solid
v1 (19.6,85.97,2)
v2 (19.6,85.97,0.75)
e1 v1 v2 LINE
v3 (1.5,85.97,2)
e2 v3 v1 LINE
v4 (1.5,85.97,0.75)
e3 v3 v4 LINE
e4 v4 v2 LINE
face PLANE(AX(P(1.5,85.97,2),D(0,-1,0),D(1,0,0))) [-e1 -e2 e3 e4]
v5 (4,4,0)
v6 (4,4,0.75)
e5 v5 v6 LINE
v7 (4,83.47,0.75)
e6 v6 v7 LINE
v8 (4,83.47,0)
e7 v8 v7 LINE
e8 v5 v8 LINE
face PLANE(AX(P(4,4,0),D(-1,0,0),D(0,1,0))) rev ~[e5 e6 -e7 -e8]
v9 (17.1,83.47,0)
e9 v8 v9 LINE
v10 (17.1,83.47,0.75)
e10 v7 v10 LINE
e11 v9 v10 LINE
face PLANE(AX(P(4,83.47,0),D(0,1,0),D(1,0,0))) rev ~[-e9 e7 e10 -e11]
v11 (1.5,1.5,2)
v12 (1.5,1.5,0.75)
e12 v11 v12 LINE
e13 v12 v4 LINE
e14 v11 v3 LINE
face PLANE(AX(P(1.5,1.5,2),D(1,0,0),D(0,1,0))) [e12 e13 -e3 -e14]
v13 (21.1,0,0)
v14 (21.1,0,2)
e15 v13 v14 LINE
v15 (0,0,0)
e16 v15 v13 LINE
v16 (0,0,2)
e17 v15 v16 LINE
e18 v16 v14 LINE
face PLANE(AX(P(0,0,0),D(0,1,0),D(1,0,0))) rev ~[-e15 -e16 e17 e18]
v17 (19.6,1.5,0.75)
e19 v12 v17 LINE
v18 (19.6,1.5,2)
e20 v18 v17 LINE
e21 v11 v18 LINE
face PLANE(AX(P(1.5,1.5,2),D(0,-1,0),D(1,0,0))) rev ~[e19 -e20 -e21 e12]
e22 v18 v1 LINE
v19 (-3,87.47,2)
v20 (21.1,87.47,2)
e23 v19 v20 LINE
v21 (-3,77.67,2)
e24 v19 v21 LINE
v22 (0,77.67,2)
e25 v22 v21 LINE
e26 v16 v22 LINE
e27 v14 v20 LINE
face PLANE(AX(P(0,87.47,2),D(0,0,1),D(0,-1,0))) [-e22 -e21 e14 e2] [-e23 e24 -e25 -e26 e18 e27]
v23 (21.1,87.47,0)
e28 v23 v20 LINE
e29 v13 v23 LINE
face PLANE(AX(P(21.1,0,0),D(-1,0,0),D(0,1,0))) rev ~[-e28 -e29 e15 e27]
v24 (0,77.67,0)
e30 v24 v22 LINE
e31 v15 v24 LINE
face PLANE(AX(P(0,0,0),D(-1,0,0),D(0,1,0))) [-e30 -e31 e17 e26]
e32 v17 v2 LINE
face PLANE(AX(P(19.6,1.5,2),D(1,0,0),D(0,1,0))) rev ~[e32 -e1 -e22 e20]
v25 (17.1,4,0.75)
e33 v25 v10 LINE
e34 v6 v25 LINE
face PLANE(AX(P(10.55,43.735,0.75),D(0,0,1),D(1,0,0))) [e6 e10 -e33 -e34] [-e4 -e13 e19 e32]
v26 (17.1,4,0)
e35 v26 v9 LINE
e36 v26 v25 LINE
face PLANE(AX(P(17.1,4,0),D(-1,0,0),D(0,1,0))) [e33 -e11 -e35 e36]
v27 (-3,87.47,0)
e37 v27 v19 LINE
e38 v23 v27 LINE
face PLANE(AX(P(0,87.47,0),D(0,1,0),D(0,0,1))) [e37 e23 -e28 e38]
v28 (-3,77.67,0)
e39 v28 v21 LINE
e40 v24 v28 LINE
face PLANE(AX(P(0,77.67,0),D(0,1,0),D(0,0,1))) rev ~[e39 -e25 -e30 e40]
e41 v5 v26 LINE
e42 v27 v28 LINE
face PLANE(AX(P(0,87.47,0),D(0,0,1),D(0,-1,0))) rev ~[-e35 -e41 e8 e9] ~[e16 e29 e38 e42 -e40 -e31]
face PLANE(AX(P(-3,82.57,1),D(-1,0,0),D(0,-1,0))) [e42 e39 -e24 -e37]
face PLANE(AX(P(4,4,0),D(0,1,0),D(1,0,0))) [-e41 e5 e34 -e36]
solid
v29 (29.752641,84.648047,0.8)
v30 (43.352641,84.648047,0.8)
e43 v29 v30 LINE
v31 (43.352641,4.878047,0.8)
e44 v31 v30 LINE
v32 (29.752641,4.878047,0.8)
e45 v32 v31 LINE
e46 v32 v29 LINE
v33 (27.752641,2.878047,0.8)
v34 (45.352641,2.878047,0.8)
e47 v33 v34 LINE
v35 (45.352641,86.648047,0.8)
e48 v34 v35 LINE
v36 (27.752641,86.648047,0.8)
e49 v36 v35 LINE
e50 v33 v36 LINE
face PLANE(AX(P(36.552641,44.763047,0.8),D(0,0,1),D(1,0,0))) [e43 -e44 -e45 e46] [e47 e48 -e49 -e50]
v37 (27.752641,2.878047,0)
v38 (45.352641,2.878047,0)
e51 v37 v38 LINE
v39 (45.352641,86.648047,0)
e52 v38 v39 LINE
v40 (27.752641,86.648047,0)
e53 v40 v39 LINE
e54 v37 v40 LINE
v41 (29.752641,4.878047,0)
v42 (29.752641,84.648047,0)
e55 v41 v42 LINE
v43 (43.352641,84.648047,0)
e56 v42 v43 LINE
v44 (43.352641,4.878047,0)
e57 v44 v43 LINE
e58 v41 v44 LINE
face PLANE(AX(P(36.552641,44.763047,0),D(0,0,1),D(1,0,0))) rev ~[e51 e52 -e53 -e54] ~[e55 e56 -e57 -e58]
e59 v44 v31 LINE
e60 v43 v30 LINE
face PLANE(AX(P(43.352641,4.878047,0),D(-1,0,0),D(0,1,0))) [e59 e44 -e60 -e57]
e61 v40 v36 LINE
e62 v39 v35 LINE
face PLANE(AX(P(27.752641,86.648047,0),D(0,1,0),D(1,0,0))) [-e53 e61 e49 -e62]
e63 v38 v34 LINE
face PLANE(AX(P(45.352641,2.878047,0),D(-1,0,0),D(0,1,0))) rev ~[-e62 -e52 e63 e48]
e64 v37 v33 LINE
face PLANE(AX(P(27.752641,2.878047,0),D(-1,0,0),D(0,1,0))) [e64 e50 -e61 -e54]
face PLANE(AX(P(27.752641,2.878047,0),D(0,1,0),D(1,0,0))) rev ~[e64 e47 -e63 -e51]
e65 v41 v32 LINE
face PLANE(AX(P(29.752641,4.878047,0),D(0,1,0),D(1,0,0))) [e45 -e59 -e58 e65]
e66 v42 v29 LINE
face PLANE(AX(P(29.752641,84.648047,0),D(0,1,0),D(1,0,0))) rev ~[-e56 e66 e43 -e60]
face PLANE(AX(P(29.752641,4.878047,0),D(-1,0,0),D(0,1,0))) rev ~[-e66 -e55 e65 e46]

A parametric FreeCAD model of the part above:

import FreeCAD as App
import Part
import Sketcher
Q = App.Units.Quantity

doc = App.newDocument("Part")
body = doc.addObject("PartDesign::Body", "Body")

# Sketch on XY plane
sketch1 = body.newObject("Sketcher::SketchObject", "Sketch")
sketch1.AttachmentSupport = (doc.getObject("XY_Plane"), [""])
sketch1.MapMode = "FlatFace"
sketch1.addGeometry([
    Part.LineSegment(App.Vector(0, 87, 0), App.Vector(0, 0, 0)),  # 0
    Part.LineSegment(App.Vector(0, 0, 0), App.Vector(21, 0, 0)),  # 1
    Part.LineSegment(App.Vector(21, 0, 0), App.Vector(21, 87, 0)),  # 2
    Part.LineSegment(App.Vector(21, 87, 0), App.Vector(0, 87, 0)),  # 3
    Part.LineSegment(App.Vector(17, 4, 0), App.Vector(4, 4, 0)),  # 4
    Part.LineSegment(App.Vector(4, 4, 0), App.Vector(4, 83, 0)),  # 5
    Part.LineSegment(App.Vector(4, 83, 0), App.Vector(17, 83, 0)),  # 6
    Part.LineSegment(App.Vector(17, 83, 0), App.Vector(17, 4, 0)),  # 7
], False)
sketch1.addConstraint([
    Sketcher.Constraint("Coincident", 0, 2, 1, 1),
    Sketcher.Constraint("Coincident", 1, 2, 2, 1),
    Sketcher.Constraint("Coincident", 2, 2, 3, 1),
    Sketcher.Constraint("Coincident", 3, 2, 0, 1),
    Sketcher.Constraint("Coincident", 4, 2, 5, 1),
    Sketcher.Constraint("Coincident", 5, 2, 6, 1),
    Sketcher.Constraint("Coincident", 6, 2, 7, 1),
    Sketcher.Constraint("Coincident", 7, 2, 4, 1),
    Sketcher.Constraint("Vertical", 0),
    Sketcher.Constraint("Horizontal", 1),
    Sketcher.Constraint("Vertical", 2),
    Sketcher.Constraint("Horizontal", 3),
    Sketcher.Constraint("Horizontal", 4),
    Sketcher.Constraint("Vertical", 5),
    Sketcher.Constraint("Horizontal", 6),
    Sketcher.Constraint("Vertical", 7),
    Sketcher.Constraint("Coincident", 0, 2, -1, 1),
    Sketcher.Constraint("DistanceX", 1, 1, 1, 2, Q("21.1 mm")),
    Sketcher.Constraint("DistanceX", 4, 2, 4, 1, Q("13.1 mm")),
    Sketcher.Constraint("DistanceX", -1, 1, 4, 2, Q("4 mm")),
    Sketcher.Constraint("DistanceY", -1, 1, 4, 2, Q("4 mm")),
    Sketcher.Constraint("DistanceY", 5, 2, 3, 2, Q("4 mm")),
    Sketcher.Constraint("DistanceY", 0, 2, 0, 1, Q("87.47 mm")),
])
pad1 = body.newObject("PartDesign::Pad", "Pad")
pad1.Profile = sketch1
pad1.Length = 2

# Sketch on XY plane
sketch2 = body.newObject("Sketcher::SketchObject", "Sketch001")
sketch2.AttachmentSupport = (doc.getObject("XY_Plane"), [""])
sketch2.MapMode = "FlatFace"
sketch2.AttachmentOffset = App.Placement(App.Vector(0, 0, 2), App.Rotation())
sketch2.addGeometry([
    Part.LineSegment(App.Vector(2, 86, 0), App.Vector(2, 2, 0)),
    Part.LineSegment(App.Vector(2, 2, 0), App.Vector(20, 2, 0)),
    Part.LineSegment(App.Vector(20, 2, 0), App.Vector(20, 86, 0)),
    Part.LineSegment(App.Vector(20, 86, 0), App.Vector(2, 86, 0)),
], False)
sketch2.addConstraint([
    Sketcher.Constraint("Coincident", 0, 2, 1, 1),
    Sketcher.Constraint("Coincident", 1, 2, 2, 1),
    Sketcher.Constraint("Coincident", 2, 2, 3, 1),
    Sketcher.Constraint("Coincident", 3, 2, 0, 1),
    Sketcher.Constraint("Vertical", 0),
    Sketcher.Constraint("Horizontal", 1),
    Sketcher.Constraint("Vertical", 2),
    Sketcher.Constraint("Horizontal", 3),
    Sketcher.Constraint("DistanceX", 1, 1, 1, 2, Q("18.1 mm")),
    Sketcher.Constraint("DistanceY", 0, 2, 0, 1, Q("84.47 mm")),
    Sketcher.Constraint("DistanceX", -1, 1, 0, 2, Q("1.5 mm")),
    Sketcher.Constraint("DistanceY", -1, 1, 0, 2, Q("1.5 mm")),
])
pocket1 = body.newObject("PartDesign::Pocket", "Pocket")
pocket1.Profile = sketch2
pocket1.Length = 1.25

# Sketch on YZ plane
sketch3 = body.newObject("Sketcher::SketchObject", "Sketch002")
sketch3.AttachmentSupport = (doc.getObject("YZ_Plane"), [""])
sketch3.MapMode = "FlatFace"
sketch3.addGeometry([
    Part.LineSegment(App.Vector(87.5, 2, 0), App.Vector(87.5, 0, 0)),
    Part.LineSegment(App.Vector(87.5, 0, 0), App.Vector(77.7, 0, 0)),
    Part.LineSegment(App.Vector(77.7, 0, 0), App.Vector(77.7, 2, 0)),
    Part.LineSegment(App.Vector(77.7, 2, 0), App.Vector(87.5, 2, 0)),
], False)
sketch3.addConstraint([
    Sketcher.Constraint("Coincident", 0, 2, 1, 1),
    Sketcher.Constraint("Coincident", 1, 2, 2, 1),
    Sketcher.Constraint("Coincident", 2, 2, 3, 1),
    Sketcher.Constraint("Coincident", 3, 2, 0, 1),
    Sketcher.Constraint("Vertical", 0),
    Sketcher.Constraint("Horizontal", 1),
    Sketcher.Constraint("Vertical", 2),
    Sketcher.Constraint("Horizontal", 3),
    Sketcher.Constraint("PointOnObject", 0, 2, -1),
    Sketcher.Constraint("DistanceY", 0, 2, 0, 1, Q("2 mm")),
    Sketcher.Constraint("DistanceX", 1, 2, 1, 1, Q("9.8 mm")),
    Sketcher.Constraint("DistanceX", -1, 1, 0, 2, Q("87.47 mm")),
])
pad2 = body.newObject("PartDesign::Pad", "Pad001")
pad2.Profile = sketch3
pad2.Length = 3
pad2.Reversed = True
body2 = doc.addObject("PartDesign::Body", "Body001")

# Sketch on XY plane
sketch4 = body2.newObject("Sketcher::SketchObject", "Sketch003")
sketch4.AttachmentSupport = (doc.getObject("XY_Plane001"), [""])
sketch4.MapMode = "FlatFace"
sketch4.addGeometry([
    Part.LineSegment(App.Vector(28, 87, 0), App.Vector(28, 3, 0)),  # 0
    Part.LineSegment(App.Vector(28, 3, 0), App.Vector(45, 3, 0)),  # 1
    Part.LineSegment(App.Vector(45, 3, 0), App.Vector(45, 87, 0)),  # 2
    Part.LineSegment(App.Vector(45, 87, 0), App.Vector(28, 87, 0)),  # 3
    Part.LineSegment(App.Vector(43, 5, 0), App.Vector(30, 5, 0)),  # 4
    Part.LineSegment(App.Vector(30, 5, 0), App.Vector(30, 85, 0)),  # 5
    Part.LineSegment(App.Vector(30, 85, 0), App.Vector(43, 85, 0)),  # 6
    Part.LineSegment(App.Vector(43, 85, 0), App.Vector(43, 5, 0)),  # 7
], False)
sketch4.addConstraint([
    Sketcher.Constraint("Coincident", 0, 2, 1, 1),
    Sketcher.Constraint("Coincident", 1, 2, 2, 1),
    Sketcher.Constraint("Coincident", 2, 2, 3, 1),
    Sketcher.Constraint("Coincident", 3, 2, 0, 1),
    Sketcher.Constraint("Coincident", 4, 2, 5, 1),
    Sketcher.Constraint("Coincident", 5, 2, 6, 1),
    Sketcher.Constraint("Coincident", 6, 2, 7, 1),
    Sketcher.Constraint("Coincident", 7, 2, 4, 1),
    Sketcher.Constraint("Vertical", 0),
    Sketcher.Constraint("Horizontal", 1),
    Sketcher.Constraint("Vertical", 2),
    Sketcher.Constraint("Horizontal", 3),
    Sketcher.Constraint("Horizontal", 4),
    Sketcher.Constraint("Vertical", 5),
    Sketcher.Constraint("Horizontal", 6),
    Sketcher.Constraint("Vertical", 7),
    Sketcher.Constraint("DistanceX", 1, 1, 1, 2, Q("17.6 mm")),
    Sketcher.Constraint("DistanceX", 4, 2, 4, 1, Q("13.6 mm")),
    Sketcher.Constraint("DistanceX", 0, 2, 4, 2, Q("2 mm")),
    Sketcher.Constraint("DistanceY", 0, 2, 4, 2, Q("2 mm")),
    Sketcher.Constraint("DistanceY", 5, 2, 3, 2, Q("2 mm")),
    Sketcher.Constraint("DistanceY", 0, 2, 0, 1, Q("83.77 mm")),
    Sketcher.Constraint("DistanceX", -1, 1, 0, 2, Q("27.752641 mm")),
    Sketcher.Constraint("DistanceY", -1, 1, 0, 2, Q("2.878047 mm")),
])
pad3 = body2.newObject("PartDesign::Pad", "Pad002")
pad3.Profile = sketch4
pad3.Length = 0.8

doc.recompute()
